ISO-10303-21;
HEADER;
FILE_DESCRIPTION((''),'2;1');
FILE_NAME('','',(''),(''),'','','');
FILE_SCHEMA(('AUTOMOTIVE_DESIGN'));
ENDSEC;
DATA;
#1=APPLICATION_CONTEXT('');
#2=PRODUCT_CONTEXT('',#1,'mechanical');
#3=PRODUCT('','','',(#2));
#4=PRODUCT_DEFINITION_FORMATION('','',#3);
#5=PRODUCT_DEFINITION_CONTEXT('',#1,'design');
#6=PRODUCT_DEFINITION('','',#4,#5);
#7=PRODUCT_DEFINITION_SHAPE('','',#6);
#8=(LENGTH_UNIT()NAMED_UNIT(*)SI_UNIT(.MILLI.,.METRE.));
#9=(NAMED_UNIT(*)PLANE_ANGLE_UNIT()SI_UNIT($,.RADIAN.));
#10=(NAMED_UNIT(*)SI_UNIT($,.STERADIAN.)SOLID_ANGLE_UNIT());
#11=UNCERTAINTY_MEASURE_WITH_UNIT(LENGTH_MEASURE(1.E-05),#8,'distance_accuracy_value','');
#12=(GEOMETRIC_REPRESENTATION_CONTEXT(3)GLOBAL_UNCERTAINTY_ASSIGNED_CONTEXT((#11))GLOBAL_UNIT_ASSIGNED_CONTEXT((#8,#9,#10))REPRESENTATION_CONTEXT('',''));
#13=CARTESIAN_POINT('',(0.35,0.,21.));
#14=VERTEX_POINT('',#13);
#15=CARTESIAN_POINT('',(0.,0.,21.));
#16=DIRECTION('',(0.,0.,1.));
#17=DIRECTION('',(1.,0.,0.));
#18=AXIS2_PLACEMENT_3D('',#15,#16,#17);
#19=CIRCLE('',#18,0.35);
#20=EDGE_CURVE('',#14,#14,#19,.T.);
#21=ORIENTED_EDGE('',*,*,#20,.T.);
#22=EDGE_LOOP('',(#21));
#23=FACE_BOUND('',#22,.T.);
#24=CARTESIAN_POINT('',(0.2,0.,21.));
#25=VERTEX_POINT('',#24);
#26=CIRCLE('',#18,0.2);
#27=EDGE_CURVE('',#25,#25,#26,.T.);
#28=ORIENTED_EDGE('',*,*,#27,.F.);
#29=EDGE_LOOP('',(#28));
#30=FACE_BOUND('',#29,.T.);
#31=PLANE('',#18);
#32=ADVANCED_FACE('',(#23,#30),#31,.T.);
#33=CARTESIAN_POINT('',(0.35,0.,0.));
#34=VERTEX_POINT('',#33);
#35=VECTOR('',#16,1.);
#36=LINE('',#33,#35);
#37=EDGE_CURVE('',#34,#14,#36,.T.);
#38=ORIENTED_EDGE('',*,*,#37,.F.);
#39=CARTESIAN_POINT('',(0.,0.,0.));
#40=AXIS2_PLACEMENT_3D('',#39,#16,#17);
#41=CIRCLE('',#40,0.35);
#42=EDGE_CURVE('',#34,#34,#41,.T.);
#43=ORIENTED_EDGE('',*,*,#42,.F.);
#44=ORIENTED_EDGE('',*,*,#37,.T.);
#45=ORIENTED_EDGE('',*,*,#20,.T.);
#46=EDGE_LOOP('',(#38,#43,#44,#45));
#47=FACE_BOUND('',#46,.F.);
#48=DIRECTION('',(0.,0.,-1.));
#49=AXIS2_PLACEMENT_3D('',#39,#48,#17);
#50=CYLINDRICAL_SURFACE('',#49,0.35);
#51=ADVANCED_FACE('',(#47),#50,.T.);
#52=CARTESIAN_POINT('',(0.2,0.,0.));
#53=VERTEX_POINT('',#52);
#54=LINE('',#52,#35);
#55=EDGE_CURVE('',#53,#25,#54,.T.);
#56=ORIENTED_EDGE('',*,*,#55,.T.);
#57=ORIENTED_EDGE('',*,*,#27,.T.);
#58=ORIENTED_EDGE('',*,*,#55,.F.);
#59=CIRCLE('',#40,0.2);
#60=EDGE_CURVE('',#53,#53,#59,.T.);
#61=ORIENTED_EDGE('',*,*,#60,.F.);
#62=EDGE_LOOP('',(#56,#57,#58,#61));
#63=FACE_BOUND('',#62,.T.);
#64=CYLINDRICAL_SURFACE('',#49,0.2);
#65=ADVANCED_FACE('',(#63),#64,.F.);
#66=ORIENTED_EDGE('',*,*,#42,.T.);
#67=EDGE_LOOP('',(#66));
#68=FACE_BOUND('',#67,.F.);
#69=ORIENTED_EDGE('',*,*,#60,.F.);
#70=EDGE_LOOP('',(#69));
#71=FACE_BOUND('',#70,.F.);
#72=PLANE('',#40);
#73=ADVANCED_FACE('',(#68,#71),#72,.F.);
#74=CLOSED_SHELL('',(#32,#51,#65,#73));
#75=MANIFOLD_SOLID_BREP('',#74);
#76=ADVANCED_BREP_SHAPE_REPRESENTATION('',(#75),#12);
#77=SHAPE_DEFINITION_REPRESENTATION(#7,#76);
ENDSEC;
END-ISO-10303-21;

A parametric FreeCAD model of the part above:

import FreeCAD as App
import Part
import Sketcher
from FreeCAD import Vector
Q = App.Units.Quantity

doc = App.newDocument("Part")
body = doc.addObject("PartDesign::Body", "Body")

# Sketch on XY plane
sketch1 = body.newObject("Sketcher::SketchObject", "Sketch")
sketch1.AttachmentSupport = (doc.getObject("XY_Plane"), [""])
sketch1.MapMode = "FlatFace"
sketch1.addGeometry([
    Part.Circle(Vector(0, 0, 0), Vector(0, 0, 1), 0.35),
    Part.Circle(Vector(0, 0, 0), Vector(0, 0, 1), 0.2),
], False)
sketch1.addConstraint([
    Sketcher.Constraint("Coincident", 0, 3, -1, 1),
    Sketcher.Constraint("Coincident", 1, 3, -1, 1),
    Sketcher.Constraint("Diameter", 0, Q("0.7 mm")),
    Sketcher.Constraint("Diameter", 1, Q("0.4 mm")),
])
pad1 = body.newObject("PartDesign::Pad", "Pad")
pad1.Profile = sketch1
pad1.Length = 21

doc.recompute()
